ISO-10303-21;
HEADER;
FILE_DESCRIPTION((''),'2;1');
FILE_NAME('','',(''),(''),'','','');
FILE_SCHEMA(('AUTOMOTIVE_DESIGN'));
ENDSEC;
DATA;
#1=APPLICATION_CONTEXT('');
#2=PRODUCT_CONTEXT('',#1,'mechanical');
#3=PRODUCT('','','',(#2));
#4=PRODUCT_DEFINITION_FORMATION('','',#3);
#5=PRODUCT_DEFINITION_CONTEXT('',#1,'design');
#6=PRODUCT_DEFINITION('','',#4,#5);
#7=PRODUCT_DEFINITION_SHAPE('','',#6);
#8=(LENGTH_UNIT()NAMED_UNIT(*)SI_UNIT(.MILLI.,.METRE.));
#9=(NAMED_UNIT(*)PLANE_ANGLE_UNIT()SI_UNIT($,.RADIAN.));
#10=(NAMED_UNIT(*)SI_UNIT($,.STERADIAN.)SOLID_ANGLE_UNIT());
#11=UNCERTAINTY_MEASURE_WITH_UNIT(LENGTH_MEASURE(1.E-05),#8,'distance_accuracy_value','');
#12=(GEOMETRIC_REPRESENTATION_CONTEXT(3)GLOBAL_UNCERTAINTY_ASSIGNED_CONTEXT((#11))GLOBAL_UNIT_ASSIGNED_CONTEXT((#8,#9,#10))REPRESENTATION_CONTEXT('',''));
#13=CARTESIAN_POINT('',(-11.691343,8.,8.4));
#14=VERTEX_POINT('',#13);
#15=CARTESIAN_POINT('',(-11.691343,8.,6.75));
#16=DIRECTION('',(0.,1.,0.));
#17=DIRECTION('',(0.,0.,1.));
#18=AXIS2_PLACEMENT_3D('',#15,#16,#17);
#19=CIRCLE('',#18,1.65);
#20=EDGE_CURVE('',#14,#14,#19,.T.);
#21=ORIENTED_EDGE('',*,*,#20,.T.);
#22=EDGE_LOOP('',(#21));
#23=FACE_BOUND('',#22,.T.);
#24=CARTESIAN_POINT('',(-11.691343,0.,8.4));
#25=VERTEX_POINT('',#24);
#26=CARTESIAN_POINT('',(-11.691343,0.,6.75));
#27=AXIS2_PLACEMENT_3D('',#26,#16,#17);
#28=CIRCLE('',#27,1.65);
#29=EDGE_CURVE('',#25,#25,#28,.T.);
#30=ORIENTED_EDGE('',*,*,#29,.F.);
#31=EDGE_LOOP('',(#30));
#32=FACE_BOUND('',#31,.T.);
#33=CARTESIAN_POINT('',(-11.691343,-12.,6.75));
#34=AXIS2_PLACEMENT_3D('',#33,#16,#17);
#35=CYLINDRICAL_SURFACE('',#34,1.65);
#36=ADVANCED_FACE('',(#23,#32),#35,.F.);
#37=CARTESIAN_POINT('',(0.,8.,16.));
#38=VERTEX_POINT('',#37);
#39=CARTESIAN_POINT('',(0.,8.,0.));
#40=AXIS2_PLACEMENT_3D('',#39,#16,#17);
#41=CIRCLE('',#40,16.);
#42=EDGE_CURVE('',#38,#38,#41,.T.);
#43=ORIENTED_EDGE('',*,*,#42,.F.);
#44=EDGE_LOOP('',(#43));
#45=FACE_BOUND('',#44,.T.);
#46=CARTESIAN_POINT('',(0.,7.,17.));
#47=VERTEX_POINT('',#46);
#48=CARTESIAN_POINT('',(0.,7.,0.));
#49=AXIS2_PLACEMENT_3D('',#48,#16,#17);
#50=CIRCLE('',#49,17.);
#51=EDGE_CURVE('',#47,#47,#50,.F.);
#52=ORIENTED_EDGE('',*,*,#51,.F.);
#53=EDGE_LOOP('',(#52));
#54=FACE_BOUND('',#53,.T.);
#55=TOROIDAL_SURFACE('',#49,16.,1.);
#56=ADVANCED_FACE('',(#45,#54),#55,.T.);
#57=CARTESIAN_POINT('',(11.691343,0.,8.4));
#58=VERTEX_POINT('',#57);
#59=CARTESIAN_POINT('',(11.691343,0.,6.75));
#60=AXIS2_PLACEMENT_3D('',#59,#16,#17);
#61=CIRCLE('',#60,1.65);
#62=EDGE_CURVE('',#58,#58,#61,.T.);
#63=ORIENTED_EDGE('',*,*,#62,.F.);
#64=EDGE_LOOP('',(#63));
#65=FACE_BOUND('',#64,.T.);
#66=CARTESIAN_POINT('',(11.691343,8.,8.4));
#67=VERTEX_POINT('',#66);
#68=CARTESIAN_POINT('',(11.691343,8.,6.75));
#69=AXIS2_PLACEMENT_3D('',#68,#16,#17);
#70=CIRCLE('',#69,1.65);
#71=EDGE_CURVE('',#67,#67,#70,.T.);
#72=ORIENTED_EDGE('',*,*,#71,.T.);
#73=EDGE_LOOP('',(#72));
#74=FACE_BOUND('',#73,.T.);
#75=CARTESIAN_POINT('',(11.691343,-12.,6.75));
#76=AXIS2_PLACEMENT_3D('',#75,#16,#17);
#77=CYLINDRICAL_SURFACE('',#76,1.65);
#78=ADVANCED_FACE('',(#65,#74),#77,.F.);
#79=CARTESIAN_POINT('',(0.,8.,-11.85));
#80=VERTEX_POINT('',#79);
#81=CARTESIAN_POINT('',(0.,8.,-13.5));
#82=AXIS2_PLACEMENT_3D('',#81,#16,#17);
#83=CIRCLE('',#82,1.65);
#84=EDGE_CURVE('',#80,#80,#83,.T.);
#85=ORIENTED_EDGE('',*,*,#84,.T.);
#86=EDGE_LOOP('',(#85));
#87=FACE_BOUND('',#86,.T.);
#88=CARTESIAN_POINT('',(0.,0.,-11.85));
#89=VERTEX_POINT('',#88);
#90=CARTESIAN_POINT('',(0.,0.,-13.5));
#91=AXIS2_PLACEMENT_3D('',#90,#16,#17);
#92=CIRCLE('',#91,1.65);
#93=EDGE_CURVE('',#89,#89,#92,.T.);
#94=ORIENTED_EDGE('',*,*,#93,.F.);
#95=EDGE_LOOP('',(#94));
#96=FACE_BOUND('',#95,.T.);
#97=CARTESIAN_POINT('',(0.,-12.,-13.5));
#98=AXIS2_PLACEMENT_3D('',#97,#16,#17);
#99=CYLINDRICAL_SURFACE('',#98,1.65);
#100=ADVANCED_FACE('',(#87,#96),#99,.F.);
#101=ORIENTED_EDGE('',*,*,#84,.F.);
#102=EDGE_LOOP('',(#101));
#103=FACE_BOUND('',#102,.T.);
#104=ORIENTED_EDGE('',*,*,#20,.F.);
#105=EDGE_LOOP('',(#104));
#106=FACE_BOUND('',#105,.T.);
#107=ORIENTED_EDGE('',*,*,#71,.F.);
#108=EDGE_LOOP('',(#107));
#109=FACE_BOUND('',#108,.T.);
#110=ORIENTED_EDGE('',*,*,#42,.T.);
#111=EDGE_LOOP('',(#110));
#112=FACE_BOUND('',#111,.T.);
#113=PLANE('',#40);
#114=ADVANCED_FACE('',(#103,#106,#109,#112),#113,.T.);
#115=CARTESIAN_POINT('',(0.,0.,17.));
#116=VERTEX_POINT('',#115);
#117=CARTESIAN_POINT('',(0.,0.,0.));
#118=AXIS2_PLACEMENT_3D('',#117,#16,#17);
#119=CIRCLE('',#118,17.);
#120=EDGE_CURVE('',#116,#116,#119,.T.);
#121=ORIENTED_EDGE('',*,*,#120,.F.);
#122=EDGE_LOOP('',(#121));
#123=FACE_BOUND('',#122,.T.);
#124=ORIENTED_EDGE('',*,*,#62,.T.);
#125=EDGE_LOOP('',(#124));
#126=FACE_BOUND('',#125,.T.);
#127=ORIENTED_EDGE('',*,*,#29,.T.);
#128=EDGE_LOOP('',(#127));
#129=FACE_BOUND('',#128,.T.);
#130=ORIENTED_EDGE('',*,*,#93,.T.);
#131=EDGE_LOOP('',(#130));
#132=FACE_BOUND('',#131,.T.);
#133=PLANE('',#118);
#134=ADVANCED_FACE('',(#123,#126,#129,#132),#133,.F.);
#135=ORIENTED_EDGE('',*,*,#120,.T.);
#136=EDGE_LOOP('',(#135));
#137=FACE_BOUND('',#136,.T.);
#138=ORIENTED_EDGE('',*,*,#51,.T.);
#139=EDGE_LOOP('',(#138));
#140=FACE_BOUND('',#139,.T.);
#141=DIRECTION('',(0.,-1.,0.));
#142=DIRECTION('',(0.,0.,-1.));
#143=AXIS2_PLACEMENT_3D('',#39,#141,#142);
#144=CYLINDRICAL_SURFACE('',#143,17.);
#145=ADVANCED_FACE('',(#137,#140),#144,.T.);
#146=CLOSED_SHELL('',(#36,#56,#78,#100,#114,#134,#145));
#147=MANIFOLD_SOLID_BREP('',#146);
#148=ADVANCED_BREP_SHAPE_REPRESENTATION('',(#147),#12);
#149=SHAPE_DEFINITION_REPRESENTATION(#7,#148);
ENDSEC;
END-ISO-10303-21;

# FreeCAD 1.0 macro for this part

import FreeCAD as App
import Part
import Sketcher
from FreeCAD import Vector


def edges_at(feature, points):
    """Names of the edges that pass closest to the given points."""
    edges = feature.Shape.Edges
    near = lambda p: min(range(len(edges)), key=lambda i: edges[i].distToShape(Part.Vertex(*p))[0])
    return sorted({f"Edge{near(p) + 1}" for p in points})

doc = App.newDocument("Part")
body = doc.addObject("PartDesign::Body", "Body")

sketch1 = doc.addObject("Sketcher::SketchObject", "Sketch")
body.addObject(sketch1)
sketch1.AttachmentSupport = (doc.XZ_Plane, [""])
sketch1.MapMode = "FlatFace"
sketch1.addGeometry(Part.Circle(Vector(0, 0, 0), Vector(0, 0, 1), 17), False)
sketch1.addConstraint(Sketcher.Constraint("Coincident", 0, 3, -1, 1))
sketch1.addConstraint(Sketcher.Constraint("Diameter", 0, 34.0))
pad1 = doc.addObject("PartDesign::Pad", "Pad")
body.addObject(pad1)
pad1.Profile = sketch1
pad1.Length = 8
pad1.Reversed = True

sketch2 = doc.addObject("Sketcher::SketchObject", "Sketch001")
body.addObject(sketch2)
sketch2.AttachmentSupport = (doc.XZ_Plane, [""])
sketch2.MapMode = "FlatFace"
sketch2.AttachmentOffset = App.Placement(Vector(0, 0, -8), App.Rotation())
sketch2.addGeometry(Part.Circle(Vector(0, -13.5, 0), Vector(0, 0, 1), 1.6), False)
sketch2.addGeometry(Part.Circle(Vector(11.7, 6.8, 0), Vector(0, 0, 1), 1.6), False)
sketch2.addGeometry(Part.Circle(Vector(-11.7, 6.8, 0), Vector(0, 0, 1), 1.6), False)
sketch2.addConstraint(Sketcher.Constraint("Equal", 0, 1))
sketch2.addConstraint(Sketcher.Constraint("Equal", 1, 2))
sketch2.addConstraint(Sketcher.Constraint("Symmetric", 1, 3, 2, 3, -2))
sketch2.addConstraint(Sketcher.Constraint("PointOnObject", 0, 3, -2))
sketch2.addConstraint(Sketcher.Constraint("Diameter", 0, 3.3))
sketch2.addConstraint(Sketcher.Constraint("DistanceY", 0, 3, -1, 1, 13.5))
sketch2.addConstraint(Sketcher.Constraint("DistanceY", -1, 1, 1, 3, 6.75))
sketch2.addConstraint(Sketcher.Constraint("DistanceX", -1, 1, 1, 3, 11.691343))
pocket1 = doc.addObject("PartDesign::Pocket", "Pocket")
body.addObject(pocket1)
pocket1.Profile = sketch2
pocket1.Length = 20
pocket1.Reversed = True
doc.recompute()

fillet = doc.addObject("PartDesign::Fillet", "Fillet")
body.addObject(fillet)
fillet.Base = (pocket1, edges_at(pocket1, [(0, 8, -17)]))
fillet.Radius = 1

doc.recompute()
